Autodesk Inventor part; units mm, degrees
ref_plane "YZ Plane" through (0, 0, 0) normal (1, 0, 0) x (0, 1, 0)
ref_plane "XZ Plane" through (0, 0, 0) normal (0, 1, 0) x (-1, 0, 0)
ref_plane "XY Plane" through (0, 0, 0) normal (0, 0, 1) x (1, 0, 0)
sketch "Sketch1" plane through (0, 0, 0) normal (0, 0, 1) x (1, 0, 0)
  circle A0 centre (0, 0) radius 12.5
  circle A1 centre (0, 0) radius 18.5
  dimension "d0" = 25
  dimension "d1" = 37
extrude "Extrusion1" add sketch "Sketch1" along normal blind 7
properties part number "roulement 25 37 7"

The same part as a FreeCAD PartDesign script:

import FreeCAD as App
import Part
import Sketcher

doc = App.newDocument("Part")
body = doc.addObject("PartDesign::Body", "Body")

# Sketch on XY plane
sketch1 = doc.addObject("Sketcher::SketchObject", "Sketch")
body.addObject(sketch1)
sketch1.AttachmentSupport = (doc.XY_Plane, [""])
sketch1.MapMode = "FlatFace"
sketch1.addGeometry([
    Part.Circle(App.Vector(0, 0, 0), App.Vector(0, 0, 1), 18.5),
    Part.Circle(App.Vector(0, 0, 0), App.Vector(0, 0, 1), 12.5),
], False)
sketch1.addConstraint([
    Sketcher.Constraint("Coincident", 0, 3, -1, 1),
    Sketcher.Constraint("Coincident", 1, 3, -1, 1),
    Sketcher.Constraint("Diameter", 0, 37.0),
    Sketcher.Constraint("Diameter", 1, 25.0),
])
pad1 = doc.addObject("PartDesign::Pad", "Pad")
body.addObject(pad1)
pad1.Profile = sketch1
pad1.Length = 7

doc.recompute()
